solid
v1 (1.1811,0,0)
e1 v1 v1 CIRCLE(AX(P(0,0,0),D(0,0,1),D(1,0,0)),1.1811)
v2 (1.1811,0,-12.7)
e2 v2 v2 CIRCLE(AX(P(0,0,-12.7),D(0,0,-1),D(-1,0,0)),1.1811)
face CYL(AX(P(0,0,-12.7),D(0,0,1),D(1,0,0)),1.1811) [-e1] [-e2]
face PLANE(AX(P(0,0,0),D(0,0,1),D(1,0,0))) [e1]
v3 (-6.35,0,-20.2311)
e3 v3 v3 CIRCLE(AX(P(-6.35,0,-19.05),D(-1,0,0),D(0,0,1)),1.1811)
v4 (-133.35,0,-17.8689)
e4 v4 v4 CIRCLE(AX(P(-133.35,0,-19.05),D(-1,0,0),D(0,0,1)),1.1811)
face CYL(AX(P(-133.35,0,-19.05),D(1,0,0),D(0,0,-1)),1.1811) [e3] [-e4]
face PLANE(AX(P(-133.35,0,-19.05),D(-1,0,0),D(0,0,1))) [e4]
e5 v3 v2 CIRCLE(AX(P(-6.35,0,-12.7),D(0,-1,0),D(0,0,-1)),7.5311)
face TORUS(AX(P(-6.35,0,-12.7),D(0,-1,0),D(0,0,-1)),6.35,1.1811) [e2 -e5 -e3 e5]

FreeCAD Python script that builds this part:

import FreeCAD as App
import Part
import Sketcher
Q = App.Units.Quantity

doc = App.newDocument("Part")
body = doc.addObject("PartDesign::Body", "Body")

sketch1 = body.newObject("Sketcher::SketchObject", "Sketch")
sketch1.AttachmentSupport = (doc.getObject("XY_Plane"), [""])
sketch1.MapMode = "FlatFace"
sketch1.addGeometry(Part.Circle(App.Vector(0, 0, 0), App.Vector(0, 0, 1), 1.2), False)
sketch1.addConstraint([
    Sketcher.Constraint("Coincident", 0, 3, -1, 1),
    Sketcher.Constraint("Diameter", 0, Q("0.093 in")),
])
pad1 = body.newObject("PartDesign::Pad", "Pad")
pad1.Profile = sketch1
pad1.Length = Q("0.5 in")
pad1.Reversed = True

sketch2 = body.newObject("Sketcher::SketchObject", "Sketch001")
sketch2.AttachmentSupport = (doc.getObject("XY_Plane"), [""])
sketch2.MapMode = "FlatFace"
sketch2.AttachmentOffset = App.Placement(App.Vector(0, 0, -0.5 * 25.4), App.Rotation())
sketch2.addGeometry(Part.Circle(App.Vector(0, 0, 0), App.Vector(0, 0, 1), 1.2), False)
sketch2.addGeometry(Part.LineSegment(App.Vector(-6.3, 0, 0), App.Vector(-6.3, 10, 0)), True)
sketch2.addConstraint([
    Sketcher.Constraint("Vertical", 1),
    Sketcher.Constraint("Coincident", 0, 3, -1, 1),
    Sketcher.Constraint("PointOnObject", 1, 1, -1),
    Sketcher.Constraint("Diameter", 0, Q("0.093 in")),
    Sketcher.Constraint("DistanceX", 1, 1, -1, 1, Q("0.25 in")),
    Sketcher.Constraint("DistanceY", 1, 1, 1, 2, Q("10 mm")),
])
revolution = body.newObject("PartDesign::Revolution", "Revolution")
revolution.Profile = sketch2
revolution.ReferenceAxis = (sketch2, ["Axis0"])
revolution.Angle = 90

sketch3 = body.newObject("Sketcher::SketchObject", "Sketch002")
sketch3.AttachmentSupport = (doc.getObject("YZ_Plane"), [""])
sketch3.MapMode = "FlatFace"
sketch3.AttachmentOffset = App.Placement(App.Vector(0, 0, -0.25 * 25.4), App.Rotation())
sketch3.addGeometry(Part.Circle(App.Vector(0, -19.1, 0), App.Vector(0, 0, 1), 1.2), False)
sketch3.addConstraint([
    Sketcher.Constraint("PointOnObject", 0, 3, -2),
    Sketcher.Constraint("Diameter", 0, Q("0.093 in")),
    Sketcher.Constraint("DistanceY", 0, 3, -1, 1, Q("0.75 in")),
])
pad2 = body.newObject("PartDesign::Pad", "Pad001")
pad2.Profile = sketch3
pad2.Length = Q("5 in")
pad2.Reversed = True

doc.recompute()
